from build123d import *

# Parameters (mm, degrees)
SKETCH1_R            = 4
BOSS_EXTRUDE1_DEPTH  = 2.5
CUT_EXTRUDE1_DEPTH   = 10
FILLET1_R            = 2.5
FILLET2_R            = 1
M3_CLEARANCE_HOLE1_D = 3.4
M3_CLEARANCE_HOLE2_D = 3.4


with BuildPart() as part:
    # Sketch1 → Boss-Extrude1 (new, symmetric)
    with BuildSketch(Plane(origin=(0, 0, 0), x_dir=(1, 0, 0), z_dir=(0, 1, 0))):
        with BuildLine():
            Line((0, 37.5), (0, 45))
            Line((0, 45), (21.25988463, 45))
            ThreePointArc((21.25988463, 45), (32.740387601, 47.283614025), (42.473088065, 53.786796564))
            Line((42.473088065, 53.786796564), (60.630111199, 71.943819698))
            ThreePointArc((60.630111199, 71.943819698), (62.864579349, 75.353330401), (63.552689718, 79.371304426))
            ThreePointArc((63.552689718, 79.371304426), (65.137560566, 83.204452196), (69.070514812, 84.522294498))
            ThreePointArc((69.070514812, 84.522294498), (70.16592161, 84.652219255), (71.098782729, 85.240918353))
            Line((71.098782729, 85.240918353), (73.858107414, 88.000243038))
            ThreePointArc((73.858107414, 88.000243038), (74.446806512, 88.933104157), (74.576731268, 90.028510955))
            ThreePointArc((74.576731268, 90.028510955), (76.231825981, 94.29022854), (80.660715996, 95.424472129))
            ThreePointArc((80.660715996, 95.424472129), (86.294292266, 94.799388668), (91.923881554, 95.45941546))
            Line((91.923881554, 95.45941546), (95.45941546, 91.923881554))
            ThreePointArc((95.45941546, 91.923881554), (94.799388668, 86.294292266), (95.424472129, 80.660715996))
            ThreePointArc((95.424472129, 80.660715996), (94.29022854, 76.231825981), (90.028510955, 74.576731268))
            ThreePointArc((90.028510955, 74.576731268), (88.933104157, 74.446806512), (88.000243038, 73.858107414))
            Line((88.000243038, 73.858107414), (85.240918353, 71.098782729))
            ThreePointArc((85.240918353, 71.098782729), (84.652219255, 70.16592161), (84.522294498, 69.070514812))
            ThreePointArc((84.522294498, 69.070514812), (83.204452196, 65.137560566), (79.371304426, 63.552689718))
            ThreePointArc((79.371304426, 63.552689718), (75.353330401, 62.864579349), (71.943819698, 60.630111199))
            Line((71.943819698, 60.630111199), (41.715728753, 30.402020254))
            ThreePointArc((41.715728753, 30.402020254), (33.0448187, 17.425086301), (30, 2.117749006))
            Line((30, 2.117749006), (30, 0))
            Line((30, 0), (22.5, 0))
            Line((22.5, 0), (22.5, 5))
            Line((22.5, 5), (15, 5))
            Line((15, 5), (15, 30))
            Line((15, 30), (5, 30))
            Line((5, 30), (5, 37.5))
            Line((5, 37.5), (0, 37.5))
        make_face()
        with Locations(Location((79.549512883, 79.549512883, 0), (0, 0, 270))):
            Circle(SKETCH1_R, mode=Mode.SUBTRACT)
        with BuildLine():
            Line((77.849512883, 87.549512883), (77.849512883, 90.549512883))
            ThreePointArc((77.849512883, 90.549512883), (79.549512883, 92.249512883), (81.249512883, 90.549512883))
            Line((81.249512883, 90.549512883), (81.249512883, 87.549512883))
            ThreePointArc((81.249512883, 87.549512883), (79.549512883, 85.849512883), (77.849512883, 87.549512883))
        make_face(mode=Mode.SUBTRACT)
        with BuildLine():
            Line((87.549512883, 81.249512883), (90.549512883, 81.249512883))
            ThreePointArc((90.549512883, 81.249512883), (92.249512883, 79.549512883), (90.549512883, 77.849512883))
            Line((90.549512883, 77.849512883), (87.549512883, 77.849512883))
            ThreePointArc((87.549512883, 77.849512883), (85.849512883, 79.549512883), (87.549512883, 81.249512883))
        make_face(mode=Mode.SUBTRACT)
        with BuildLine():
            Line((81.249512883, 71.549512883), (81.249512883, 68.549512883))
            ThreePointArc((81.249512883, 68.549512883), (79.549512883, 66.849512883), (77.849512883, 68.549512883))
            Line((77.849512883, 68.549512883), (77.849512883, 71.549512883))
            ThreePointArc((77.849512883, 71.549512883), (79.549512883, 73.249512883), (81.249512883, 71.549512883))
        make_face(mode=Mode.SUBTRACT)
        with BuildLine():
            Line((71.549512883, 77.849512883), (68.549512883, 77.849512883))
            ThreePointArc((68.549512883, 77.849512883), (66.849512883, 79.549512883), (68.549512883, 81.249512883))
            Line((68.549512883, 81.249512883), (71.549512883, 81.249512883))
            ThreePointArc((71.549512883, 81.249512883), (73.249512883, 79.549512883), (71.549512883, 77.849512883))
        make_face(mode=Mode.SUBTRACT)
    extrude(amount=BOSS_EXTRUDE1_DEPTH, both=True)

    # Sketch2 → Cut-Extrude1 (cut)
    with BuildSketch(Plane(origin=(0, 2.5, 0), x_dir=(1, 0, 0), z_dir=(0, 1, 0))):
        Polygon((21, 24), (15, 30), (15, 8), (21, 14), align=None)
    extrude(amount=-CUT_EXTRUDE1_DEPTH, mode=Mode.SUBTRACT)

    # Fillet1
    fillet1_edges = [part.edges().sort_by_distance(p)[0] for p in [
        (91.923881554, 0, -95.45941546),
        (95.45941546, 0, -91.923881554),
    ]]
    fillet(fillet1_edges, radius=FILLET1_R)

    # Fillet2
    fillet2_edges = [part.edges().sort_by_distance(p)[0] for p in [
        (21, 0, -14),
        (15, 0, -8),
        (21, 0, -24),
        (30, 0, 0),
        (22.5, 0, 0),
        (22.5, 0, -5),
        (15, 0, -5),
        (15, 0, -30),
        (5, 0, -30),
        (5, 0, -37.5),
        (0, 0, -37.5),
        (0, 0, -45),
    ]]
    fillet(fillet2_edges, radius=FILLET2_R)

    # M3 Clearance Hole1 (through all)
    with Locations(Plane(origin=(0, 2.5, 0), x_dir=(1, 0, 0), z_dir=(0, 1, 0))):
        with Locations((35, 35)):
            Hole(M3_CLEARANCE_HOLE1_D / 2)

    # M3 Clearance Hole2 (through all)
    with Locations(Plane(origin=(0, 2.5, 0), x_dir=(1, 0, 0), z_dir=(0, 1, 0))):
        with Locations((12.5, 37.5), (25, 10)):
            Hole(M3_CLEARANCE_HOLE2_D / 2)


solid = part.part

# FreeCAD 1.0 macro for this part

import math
import FreeCAD as App
import Part
import Sketcher
Q = App.Units.Quantity


def edges_at(feature, points):
    """Names of the edges that pass closest to the given points."""
    edges = feature.Shape.Edges
    near = lambda p: min(range(len(edges)), key=lambda i: edges[i].distToShape(Part.Vertex(*p))[0])
    return sorted({f"Edge{near(p) + 1}" for p in points})

doc = App.newDocument("Part")
params = doc.addObject("Spreadsheet::Sheet", "Params")
for row, (alias, value) in enumerate([
    ("sketch1_diameter", "8 mm"),
    ("sketch1_radius", "40 mm"),
    ("sketch1_radius2", "10 mm"),
    ("sketch1_radius3", "5 mm"),
    ("sketch1_radius4", "25 mm"),
    ("pad1_length", "5 mm"),
    ("sketch2_height", "22 mm"),
    ("sketch2_height2", "10 mm"),
    ("pocket1_length", "10 mm"),
    ("fillet_radius", "2.5 mm"),
    ("fillet2_radius", "1 mm"),
    ("sketch3_diameter", "3.4 mm"),
    ("hole_diameter", "3.4 mm"),
    ("sketch4_diameter", "3.4 mm"),
    ("hole2_diameter", "3.4 mm"),
], start=1):
    params.set(f"A{row}", alias)
    params.set(f"B{row}", "=" + value)
    params.setAlias(f"B{row}", alias)

body = doc.addObject("PartDesign::Body", "Body")

# Sketch on XZ plane
sketch1 = body.newObject("Sketcher::SketchObject", "Sketch")
sketch1.AttachmentSupport = (doc.getObject("XZ_Plane"), [""])
sketch1.MapMode = "FlatFace"
sketch1.addGeometry([
    Part.LineSegment(App.Vector(0, -45, 0), App.Vector(0, -37.5, 0)),  # 0
    Part.LineSegment(App.Vector(0, -37.5, 0), App.Vector(5, -37.5, 0)),  # 1
    Part.LineSegment(App.Vector(5, -37.5, 0), App.Vector(5, -30, 0)),  # 2
    Part.LineSegment(App.Vector(5, -30, 0), App.Vector(15, -30, 0)),  # 3
    Part.LineSegment(App.Vector(15, -30, 0), App.Vector(15, -5, 0)),  # 4
    Part.LineSegment(App.Vector(15, -5, 0), App.Vector(22.5, -5, 0)),  # 5
    Part.LineSegment(App.Vector(22.5, -5, 0), App.Vector(22.5, 0, 0)),  # 6
    Part.LineSegment(App.Vector(22.5, 0, 0), App.Vector(30, 0, 0)),  # 7
    Part.LineSegment(App.Vector(30, 0, 0), App.Vector(30, -2.1, 0)),  # 8
    Part.ArcOfCircle(Part.Circle(App.Vector(70, -2.1, 0), App.Vector(0, 0, 1), 40), math.radians(-180), math.radians(-135)),  # 9
    Part.LineSegment(App.Vector(41.7, -30.4, 0), App.Vector(71.9, -60.6, 0)),  # 10
    Part.ArcOfCircle(Part.Circle(App.Vector(79, -53.6, 0), App.Vector(0, 0, 1), 10), math.radians(-135), math.radians(-88)),  # 11
    Part.ArcOfCircle(Part.Circle(App.Vector(79.5, -68.5, 0), App.Vector(0, 0, 1), 5), math.radians(-6), math.radians(92)),  # 12
    Part.ArcOfCircle(Part.Circle(App.Vector(87, -69.3, 0), App.Vector(0, 0, 1), 2.5), math.radians(174), math.radians(225)),  # 13
    Part.LineSegment(App.Vector(85.2, -71.1, 0), App.Vector(88, -73.9, 0)),  # 14
    Part.ArcOfCircle(Part.Circle(App.Vector(89.8, -72.1, 0), App.Vector(0, 0, 1), 2.5), math.radians(-135), math.radians(-84)),  # 15
    Part.ArcOfCircle(Part.Circle(App.Vector(90.5, -79.5, 0), App.Vector(0, 0, 1), 5), math.radians(-13), math.radians(96)),  # 16
    Part.ArcOfCircle(Part.Circle(App.Vector(119.8, -86.2, 0), App.Vector(0, 0, 1), 25), math.radians(167), math.radians(193)),  # 17
    Part.LineSegment(App.Vector(95.5, -91.9, 0), App.Vector(91.9, -95.5, 0)),  # 18
    Part.ArcOfCircle(Part.Circle(App.Vector(86.2, -119.8, 0), App.Vector(0, 0, 1), 25), math.radians(77), math.radians(103)),  # 19
    Part.ArcOfCircle(Part.Circle(App.Vector(79.5, -90.5, 0), App.Vector(0, 0, 1), 5), math.radians(174), math.radians(283)),  # 20
    Part.ArcOfCircle(Part.Circle(App.Vector(72.1, -89.8, 0), App.Vector(0, 0, 1), 2.5), math.radians(-6), math.radians(45)),  # 21
    Part.LineSegment(App.Vector(73.9, -88, 0), App.Vector(71.1, -85.2, 0)),  # 22
    Part.ArcOfCircle(Part.Circle(App.Vector(69.3, -87, 0), App.Vector(0, 0, 1), 2.5), math.radians(45), math.radians(96)),  # 23
    Part.ArcOfCircle(Part.Circle(App.Vector(68.5, -79.5, 0), App.Vector(0, 0, 1), 5), math.radians(178), math.radians(276)),  # 24
    Part.ArcOfCircle(Part.Circle(App.Vector(53.6, -79, 0), App.Vector(0, 0, 1), 10), math.radians(-2), math.radians(45)),  # 25
    Part.LineSegment(App.Vector(60.6, -71.9, 0), App.Vector(42.5, -53.8, 0)),  # 26
    Part.ArcOfCircle(Part.Circle(App.Vector(21.3, -75, 0), App.Vector(0, 0, 1), 30), math.radians(45), math.radians(90)),  # 27
    Part.LineSegment(App.Vector(21.3, -45, 0), App.Vector(0, -45, 0)),  # 28
    Part.LineSegment(App.Vector(81.2, -71.5, 0), App.Vector(81.2, -68.5, 0)),  # 29
    Part.ArcOfCircle(Part.Circle(App.Vector(79.5, -68.5, 0), App.Vector(0, 0, 1), 1.7), math.radians(0), math.radians(180)),  # 30
    Part.LineSegment(App.Vector(77.8, -68.5, 0), App.Vector(77.8, -71.5, 0)),  # 31
    Part.ArcOfCircle(Part.Circle(App.Vector(79.5, -71.5, 0), App.Vector(0, 0, 1), 1.7), math.radians(180), math.radians(360)),  # 32
    Part.LineSegment(App.Vector(87.5, -81.2, 0), App.Vector(90.5, -81.2, 0)),  # 33
    Part.ArcOfCircle(Part.Circle(App.Vector(90.5, -79.5, 0), App.Vector(0, 0, 1), 1.7), math.radians(-90), math.radians(90)),  # 34
    Part.LineSegment(App.Vector(90.5, -77.8, 0), App.Vector(87.5, -77.8, 0)),  # 35
    Part.ArcOfCircle(Part.Circle(App.Vector(87.5, -79.5, 0), App.Vector(0, 0, 1), 1.7), math.radians(90), math.radians(270)),  # 36
    Part.Circle(App.Vector(79.5, -79.5, 0), App.Vector(0, 0, 1), 4),  # 37
    Part.LineSegment(App.Vector(77.8, -87.5, 0), App.Vector(77.8, -90.5, 0)),  # 38
    Part.ArcOfCircle(Part.Circle(App.Vector(79.5, -90.5, 0), App.Vector(0, 0, 1), 1.7), math.radians(180), math.radians(360)),  # 39
    Part.LineSegment(App.Vector(81.2, -90.5, 0), App.Vector(81.2, -87.5, 0)),  # 40
    Part.ArcOfCircle(Part.Circle(App.Vector(79.5, -87.5, 0), App.Vector(0, 0, 1), 1.7), math.radians(0), math.radians(180)),  # 41
    Part.LineSegment(App.Vector(71.5, -77.8, 0), App.Vector(68.5, -77.8, 0)),  # 42
    Part.ArcOfCircle(Part.Circle(App.Vector(68.5, -79.5, 0), App.Vector(0, 0, 1), 1.7), math.radians(90), math.radians(270)),  # 43
    Part.LineSegment(App.Vector(68.5, -81.2, 0), App.Vector(71.5, -81.2, 0)),  # 44
    Part.ArcOfCircle(Part.Circle(App.Vector(71.5, -79.5, 0), App.Vector(0, 0, 1), 1.7), math.radians(-90), math.radians(90)),  # 45
], False)
sketch1.addConstraint([
    Sketcher.Constraint("Coincident", 0, 2, 1, 1),
    Sketcher.Constraint("Coincident", 1, 2, 2, 1),
    Sketcher.Constraint("Coincident", 2, 2, 3, 1),
    Sketcher.Constraint("Coincident", 3, 2, 4, 1),
    Sketcher.Constraint("Coincident", 4, 2, 5, 1),
    Sketcher.Constraint("Coincident", 5, 2, 6, 1),
    Sketcher.Constraint("Coincident", 6, 2, 7, 1),
    Sketcher.Constraint("Coincident", 7, 2, 8, 1),
    Sketcher.Constraint("Tangent", 8, 2, 9, 1),
    Sketcher.Constraint("Tangent", 9, 2, 10, 1),
    Sketcher.Constraint("Tangent", 10, 2, 11, 1),
    Sketcher.Constraint("Tangent", 11, 2, 12, 2),
    Sketcher.Constraint("Tangent", 12, 1, 13, 1),
    Sketcher.Constraint("Tangent", 13, 2, 14, 1),
    Sketcher.Constraint("Tangent", 14, 2, 15, 1),
    Sketcher.Constraint("Tangent", 15, 2, 16, 2),
    Sketcher.Constraint("Tangent", 16, 1, 17, 1),
    Sketcher.Constraint("Coincident", 17, 2, 18, 1),
    Sketcher.Constraint("Coincident", 18, 2, 19, 1),
    Sketcher.Constraint("Tangent", 19, 2, 20, 2),
    Sketcher.Constraint("Tangent", 20, 1, 21, 1),
    Sketcher.Constraint("Tangent", 21, 2, 22, 1),
    Sketcher.Constraint("Tangent", 22, 2, 23, 1),
    Sketcher.Constraint("Tangent", 23, 2, 24, 2),
    Sketcher.Constraint("Tangent", 24, 1, 25, 1),
    Sketcher.Constraint("Tangent", 25, 2, 26, 1),
    Sketcher.Constraint("Tangent", 26, 2, 27, 1),
    Sketcher.Constraint("Tangent", 27, 2, 28, 1),
    Sketcher.Constraint("Coincident", 28, 2, 0, 1),
    Sketcher.Constraint("Tangent", 29, 2, 30, 1),
    Sketcher.Constraint("Tangent", 30, 2, 31, 1),
    Sketcher.Constraint("Tangent", 31, 2, 32, 1),
    Sketcher.Constraint("Tangent", 32, 2, 29, 1),
    Sketcher.Constraint("Tangent", 33, 2, 34, 1),
    Sketcher.Constraint("Tangent", 34, 2, 35, 1),
    Sketcher.Constraint("Tangent", 35, 2, 36, 1),
    Sketcher.Constraint("Tangent", 36, 2, 33, 1),
    Sketcher.Constraint("Tangent", 38, 2, 39, 1),
    Sketcher.Constraint("Tangent", 39, 2, 40, 1),
    Sketcher.Constraint("Tangent", 40, 2, 41, 1),
    Sketcher.Constraint("Tangent", 41, 2, 38, 1),
    Sketcher.Constraint("Tangent", 42, 2, 43, 1),
    Sketcher.Constraint("Tangent", 43, 2, 44, 1),
    Sketcher.Constraint("Tangent", 44, 2, 45, 1),
    Sketcher.Constraint("Tangent", 45, 2, 42, 1),
    Sketcher.Constraint("Vertical", 0),
    Sketcher.Constraint("Horizontal", 1),
    Sketcher.Constraint("Vertical", 2),
    Sketcher.Constraint("Horizontal", 3),
    Sketcher.Constraint("Vertical", 4),
    Sketcher.Constraint("Horizontal", 5),
    Sketcher.Constraint("Vertical", 6),
    Sketcher.Constraint("Horizontal", 7),
    Sketcher.Constraint("Vertical", 8),
    Sketcher.Constraint("Horizontal", 28),
    Sketcher.Constraint("Vertical", 29),
    Sketcher.Constraint("Vertical", 31),
    Sketcher.Constraint("Horizontal", 33),
    Sketcher.Constraint("Horizontal", 35),
    Sketcher.Constraint("Vertical", 38),
    Sketcher.Constraint("Vertical", 40),
    Sketcher.Constraint("Horizontal", 42),
    Sketcher.Constraint("Horizontal", 44),
    Sketcher.Constraint("Coincident", 30, 3, 12, 3),
    Sketcher.Constraint("Coincident", 34, 3, 16, 3),
    Sketcher.Constraint("Coincident", 39, 3, 20, 3),
    Sketcher.Constraint("Coincident", 43, 3, 24, 3),
    Sketcher.Constraint("Equal", 13, 15),
    Sketcher.Constraint("Equal", 12, 16),
    Sketcher.Constraint("Equal", 17, 19),
    Sketcher.Constraint("Equal", 16, 20),
    Sketcher.Constraint("Equal", 15, 21),
    Sketcher.Constraint("Equal", 21, 23),
    Sketcher.Constraint("Equal", 20, 24),
    Sketcher.Constraint("Equal", 11, 25),
    Sketcher.Constraint("Equal", 32, 34),
    Sketcher.Constraint("Equal", 36, 39),
    Sketcher.Constraint("Equal", 41, 43),
    Sketcher.Constraint("PointOnObject", 0, 2, -2),
    Sketcher.Constraint("PointOnObject", 6, 2, -1),
    Sketcher.Constraint("Parallel", 10, 14),
    Sketcher.Constraint("Perpendicular", 14, 18),
    Sketcher.Constraint("Perpendicular", 18, 22),
    Sketcher.Constraint("Parallel", 22, 26),
    Sketcher.Constraint("Horizontal", 16, 3, 24, 3),
    Sketcher.Constraint("Horizontal", 36, 3, 37, 3),
    Sketcher.Constraint("Vertical", 12, 3, 20, 3),
    Sketcher.Constraint("Vertical", 32, 3, 37, 3),
    Sketcher.Constraint("Equal", 5, 7),
    Sketcher.Constraint("Equal", 35, 42),
    Sketcher.Constraint("Equal", 7, 0),
    Sketcher.Constraint("Equal", 0, 2),
    Sketcher.Constraint("Equal", 1, 6),
    Sketcher.Constraint("Equal", 44, 29),
    Sketcher.Constraint("Equal", 31, 38),
    Sketcher.Constraint("Equal", 14, 22),
    Sketcher.Constraint("Diameter", 37, Q("8 mm")),
    Sketcher.Constraint("Radius", 9, Q("40 mm")),
    Sketcher.Constraint("Radius", 11, Q("10 mm")),
    Sketcher.Constraint("Radius", 12, Q("5 mm")),
    Sketcher.Constraint("Radius", 17, Q("25 mm")),
    Sketcher.Constraint("Radius", 27, Q("30 mm")),
    Sketcher.Constraint("Radius", 13, Q("2.5 mm")),
    Sketcher.Constraint("Radius", 30, Q("1.7 mm")),
    Sketcher.Constraint("DistanceX", 1, 1, 1, 2, Q("5 mm")),
    Sketcher.Constraint("DistanceX", 3, 1, 3, 2, Q("10 mm")),
    Sketcher.Constraint("DistanceX", 33, 1, 33, 2, Q("3 mm")),
    Sketcher.Constraint("DistanceY", 4, 1, 4, 2, Q("25 mm")),
    Sketcher.Constraint("Angle", 10, Q("-45 deg")),
    Sketcher.Constraint("Distance", 18, Q("5 mm")),
    Sketcher.Constraint("DistanceX", 5, 1, 5, 2, Q("7.5 mm")),
    Sketcher.Constraint("DistanceY", 8, 2, 8, 1, Q("2.117749 mm")),
    Sketcher.Constraint("Distance", 26, Q("25.677908 mm")),
    Sketcher.Constraint("DistanceX", 28, 2, 28, 1, Q("21.259885 mm")),
    Sketcher.Constraint("DistanceX", -1, 1, 15, 3, Q("89.76801 mm")),
    Sketcher.Constraint("DistanceY", 15, 3, -1, 1, Q("72.09034 mm")),
    Sketcher.Constraint("DistanceX", -1, 1, 17, 3, Q("119.799268 mm")),
    Sketcher.Constraint("DistanceY", 17, 3, -1, 1, Q("86.216732 mm")),
    Sketcher.Constraint("DistanceX", -1, 1, 19, 3, Q("86.216732 mm")),
    Sketcher.Constraint("DistanceY", 19, 3, -1, 1, Q("119.799268 mm")),
    Sketcher.Constraint("DistanceX", -1, 1, 21, 3, Q("72.09034 mm")),
    Sketcher.Constraint("DistanceY", 21, 3, -1, 1, Q("89.76801 mm")),
])
sketch1.setExpression("Constraints[96]", "Params.sketch1_diameter")
sketch1.setExpression("Constraints[97]", "Params.sketch1_radius")
sketch1.setExpression("Constraints[98]", "Params.sketch1_radius2")
sketch1.setExpression("Constraints[99]", "Params.sketch1_radius3")
sketch1.setExpression("Constraints[100]", "Params.sketch1_radius4")
pad1 = body.newObject("PartDesign::Pad", "Pad")
pad1.Profile = sketch1
pad1.setExpression("Length", "Params.pad1_length")
pad1.Midplane = True

# Sketch on XZ plane
sketch2 = body.newObject("Sketcher::SketchObject", "Sketch001")
sketch2.AttachmentSupport = (doc.getObject("XZ_Plane"), [""])
sketch2.MapMode = "FlatFace"
sketch2.AttachmentOffset = App.Placement(App.Vector(0, 0, -2.5), App.Rotation())
sketch2.addGeometry([
    Part.LineSegment(App.Vector(21, -24, 0), App.Vector(15, -30, 0)),
    Part.LineSegment(App.Vector(15, -30, 0), App.Vector(15, -8, 0)),
    Part.LineSegment(App.Vector(15, -8, 0), App.Vector(21, -14, 0)),
    Part.LineSegment(App.Vector(21, -14, 0), App.Vector(21, -24, 0)),
], False)
sketch2.addConstraint([
    Sketcher.Constraint("Coincident", 0, 2, 1, 1),
    Sketcher.Constraint("Coincident", 1, 2, 2, 1),
    Sketcher.Constraint("Coincident", 2, 2, 3, 1),
    Sketcher.Constraint("Coincident", 3, 2, 0, 1),
    Sketcher.Constraint("Vertical", 1),
    Sketcher.Constraint("Vertical", 3),
    Sketcher.Constraint("Perpendicular", 0, 2),
    Sketcher.Constraint("Equal", 0, 2),
    Sketcher.Constraint("DistanceY", 1, 1, 1, 2, Q("22 mm")),
    Sketcher.Constraint("DistanceY", 3, 2, 3, 1, Q("10 mm")),
    Sketcher.Constraint("DistanceX", -1, 1, 0, 2, Q("15 mm")),
    Sketcher.Constraint("DistanceY", 0, 2, -1, 1, Q("30 mm")),
])
sketch2.setExpression("Constraints[8]", "Params.sketch2_height")
sketch2.setExpression("Constraints[9]", "Params.sketch2_height2")
pocket1 = body.newObject("PartDesign::Pocket", "Pocket")
pocket1.Profile = sketch2
pocket1.setExpression("Length", "Params.pocket1_length")
pocket1.Reversed = True
doc.recompute()

fillet = body.newObject("PartDesign::Fillet", "Fillet")
fillet.Base = (pocket1, edges_at(pocket1, [(91.924, 0, -95.459), (95.459, 0, -91.924)]))
fillet.setExpression("Radius", "Params.fillet_radius")
doc.recompute()

fillet2 = body.newObject("PartDesign::Fillet", "Fillet001")
fillet2.Base = (fillet, edges_at(fillet, [
    (21, 0, -14),
    (15, 0, -8),
    (21, 0, -24),
    (30, 0, 0),
    (22.5, 0, 0),
    (22.5, 0, -5),
    (15, 0, -5),
    (15, 0, -30),
    (5, 0, -30),
    (5, 0, -37.5),
    (0, 0, -37.5),
    (0, 0, -45),
]))
fillet2.setExpression("Radius", "Params.fillet2_radius")

# Sketch on XZ plane
sketch3 = body.newObject("Sketcher::SketchObject", "Sketch002")
sketch3.AttachmentSupport = (doc.getObject("XZ_Plane"), [""])
sketch3.MapMode = "FlatFace"
sketch3.AttachmentOffset = App.Placement(App.Vector(0, 0, -2.5), App.Rotation())
sketch3.addGeometry(Part.Circle(App.Vector(35, -35, 0), App.Vector(0, 0, 1), 1.7), False)
sketch3.addConstraint([
    Sketcher.Constraint("Diameter", 0, Q("3.4 mm")),
    Sketcher.Constraint("DistanceX", -1, 1, 0, 3, Q("35 mm")),
    Sketcher.Constraint("DistanceY", 0, 3, -1, 1, Q("35 mm")),
])
sketch3.setExpression("Constraints[0]", "Params.sketch3_diameter")
doc.recompute()
hole = body.newObject("PartDesign::Hole", "Hole")
hole.Profile = sketch3
hole.ThreadType = "None"
hole.setExpression("Diameter", "Params.hole_diameter")
hole.DepthType = "ThroughAll"
hole.Reversed = True

# Sketch on XZ plane
sketch4 = body.newObject("Sketcher::SketchObject", "Sketch003")
sketch4.AttachmentSupport = (doc.getObject("XZ_Plane"), [""])
sketch4.MapMode = "FlatFace"
sketch4.AttachmentOffset = App.Placement(App.Vector(0, 0, -2.5), App.Rotation())
sketch4.addGeometry([
    Part.Circle(App.Vector(12.5, -37.5, 0), App.Vector(0, 0, 1), 1.7),
    Part.Circle(App.Vector(25, -10, 0), App.Vector(0, 0, 1), 1.7),
], False)
sketch4.addConstraint([
    Sketcher.Constraint("Equal", 0, 1),
    Sketcher.Constraint("Diameter", 0, Q("3.4 mm")),
    Sketcher.Constraint("DistanceX", -1, 1, 1, 3, Q("25 mm")),
    Sketcher.Constraint("DistanceY", 1, 3, -1, 1, Q("10 mm")),
    Sketcher.Constraint("DistanceX", -1, 1, 0, 3, Q("12.5 mm")),
    Sketcher.Constraint("DistanceY", 0, 3, -1, 1, Q("37.5 mm")),
])
sketch4.setExpression("Constraints[1]", "Params.sketch4_diameter")
doc.recompute()
hole2 = body.newObject("PartDesign::Hole", "Hole001")
hole2.Profile = sketch4
hole2.ThreadType = "None"
hole2.setExpression("Diameter", "Params.hole2_diameter")
hole2.DepthType = "ThroughAll"
hole2.Reversed = True

doc.recompute()
